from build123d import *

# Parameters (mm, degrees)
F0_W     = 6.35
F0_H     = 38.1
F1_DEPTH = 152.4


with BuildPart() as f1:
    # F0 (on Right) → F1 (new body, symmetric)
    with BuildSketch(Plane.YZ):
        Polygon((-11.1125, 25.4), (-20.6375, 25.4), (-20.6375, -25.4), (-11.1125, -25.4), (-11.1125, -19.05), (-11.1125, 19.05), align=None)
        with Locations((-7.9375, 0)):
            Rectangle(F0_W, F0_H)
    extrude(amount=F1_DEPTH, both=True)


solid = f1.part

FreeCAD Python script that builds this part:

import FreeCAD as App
import Part
import Sketcher

V = App.Vector
Q = App.Units.Quantity

doc = App.newDocument("Part")
body = doc.addObject("PartDesign::Body", "Body")

sketch1 = body.newObject("Sketcher::SketchObject", "Sketch")
sketch1.AttachmentSupport = (doc.getObject("YZ_Plane"), [""])
sketch1.MapMode = "FlatFace"
sketch1.addGeometry([
    Part.LineSegment(V(-11, 25, 0), V(-21, 25, 0)),
    Part.LineSegment(V(-21, 25, 0), V(-21, -25, 0)),
    Part.LineSegment(V(-21, -25, 0), V(-11, -25, 0)),
    Part.LineSegment(V(-11, -25, 0), V(-11, -19, 0)),
    Part.LineSegment(V(-11, -19, 0), V(-5, -19, 0)),
    Part.LineSegment(V(-5, -19, 0), V(-5, 19, 0)),
    Part.LineSegment(V(-5, 19, 0), V(-11, 19, 0)),
    Part.LineSegment(V(-11, 19, 0), V(-11, 25, 0)),
], False)
sketch1.addConstraint([
    Sketcher.Constraint("Coincident", 0, 2, 1, 1),
    Sketcher.Constraint("Coincident", 1, 2, 2, 1),
    Sketcher.Constraint("Coincident", 2, 2, 3, 1),
    Sketcher.Constraint("Coincident", 3, 2, 4, 1),
    Sketcher.Constraint("Coincident", 4, 2, 5, 1),
    Sketcher.Constraint("Coincident", 5, 2, 6, 1),
    Sketcher.Constraint("Coincident", 6, 2, 7, 1),
    Sketcher.Constraint("Coincident", 7, 2, 0, 1),
    Sketcher.Constraint("Horizontal", 0),
    Sketcher.Constraint("Vertical", 1),
    Sketcher.Constraint("Horizontal", 2),
    Sketcher.Constraint("Vertical", 3),
    Sketcher.Constraint("Horizontal", 4),
    Sketcher.Constraint("Vertical", 5),
    Sketcher.Constraint("Horizontal", 6),
    Sketcher.Constraint("Vertical", 7),
    Sketcher.Constraint("Symmetric", 3, 2, 6, 2, -1),
    Sketcher.Constraint("Equal", 6, 3),
    Sketcher.Constraint("Equal", 3, 7),
    Sketcher.Constraint("DistanceY", 1, 2, 1, 1, Q("2 in")),
    Sketcher.Constraint("DistanceY", 5, 1, 5, 2, Q("1.5 in")),
    Sketcher.Constraint("DistanceX", 0, 2, 0, 1, Q("0.375 in")),
    Sketcher.Constraint("DistanceX", 0, 2, -1, 1, Q("0.8125 in")),
])
pad1 = body.newObject("PartDesign::Pad", "Pad")
pad1.Profile = sketch1
pad1.Length = Q("12 in")
pad1.Midplane = True

doc.recompute()
